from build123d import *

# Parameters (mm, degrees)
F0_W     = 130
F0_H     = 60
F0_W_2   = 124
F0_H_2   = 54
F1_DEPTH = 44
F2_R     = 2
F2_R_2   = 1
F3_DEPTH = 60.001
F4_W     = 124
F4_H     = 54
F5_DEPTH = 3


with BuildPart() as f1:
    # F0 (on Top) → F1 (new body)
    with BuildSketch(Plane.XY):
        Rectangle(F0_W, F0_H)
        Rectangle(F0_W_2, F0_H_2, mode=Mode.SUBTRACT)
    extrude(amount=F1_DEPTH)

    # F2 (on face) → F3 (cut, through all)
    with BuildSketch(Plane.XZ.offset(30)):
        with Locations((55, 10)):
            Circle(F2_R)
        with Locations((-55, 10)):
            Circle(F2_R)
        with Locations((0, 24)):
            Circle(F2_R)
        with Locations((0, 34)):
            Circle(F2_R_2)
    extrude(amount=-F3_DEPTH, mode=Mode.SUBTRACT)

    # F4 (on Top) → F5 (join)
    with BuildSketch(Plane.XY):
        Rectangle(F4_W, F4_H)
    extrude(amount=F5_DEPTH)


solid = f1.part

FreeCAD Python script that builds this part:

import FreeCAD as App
import Part
import Sketcher
Q = App.Units.Quantity

doc = App.newDocument("Part")
params = doc.addObject("Spreadsheet::Sheet", "Params")
for row, (alias, value) in enumerate([
    ("sketch1_width", "130 mm"),
    ("sketch1_width2", "124 mm"),
    ("sketch1_height", "60 mm"),
    ("sketch1_height2", "54 mm"),
    ("pad1_length", "44 mm"),
    ("sketch2_diameter", "4 mm"),
    ("sketch2_diameter2", "2 mm"),
    ("sketch3_width", "124 mm"),
    ("sketch3_height", "54 mm"),
    ("pad2_length", "3 mm"),
], start=1):
    params.set(f"A{row}", alias)
    params.set(f"B{row}", "=" + value)
    params.setAlias(f"B{row}", alias)

body = doc.addObject("PartDesign::Body", "Body")

sketch1 = doc.addObject("Sketcher::SketchObject", "Sketch")
body.addObject(sketch1)
sketch1.AttachmentSupport = (doc.XY_Plane, [""])
sketch1.MapMode = "FlatFace"
sketch1.addGeometry(Part.LineSegment(App.Vector(-65, 30, 0), App.Vector(-65, -30, 0)), False)
sketch1.addGeometry(Part.LineSegment(App.Vector(-65, -30, 0), App.Vector(65, -30, 0)), False)
sketch1.addGeometry(Part.LineSegment(App.Vector(65, -30, 0), App.Vector(65, 30, 0)), False)
sketch1.addGeometry(Part.LineSegment(App.Vector(65, 30, 0), App.Vector(-65, 30, 0)), False)
sketch1.addGeometry(Part.LineSegment(App.Vector(62, -27, 0), App.Vector(-62, -27, 0)), False)
sketch1.addGeometry(Part.LineSegment(App.Vector(-62, -27, 0), App.Vector(-62, 27, 0)), False)
sketch1.addGeometry(Part.LineSegment(App.Vector(-62, 27, 0), App.Vector(62, 27, 0)), False)
sketch1.addGeometry(Part.LineSegment(App.Vector(62, 27, 0), App.Vector(62, -27, 0)), False)
sketch1.addConstraint(Sketcher.Constraint("Coincident", 0, 2, 1, 1))
sketch1.addConstraint(Sketcher.Constraint("Coincident", 1, 2, 2, 1))
sketch1.addConstraint(Sketcher.Constraint("Coincident", 2, 2, 3, 1))
sketch1.addConstraint(Sketcher.Constraint("Coincident", 3, 2, 0, 1))
sketch1.addConstraint(Sketcher.Constraint("Coincident", 4, 2, 5, 1))
sketch1.addConstraint(Sketcher.Constraint("Coincident", 5, 2, 6, 1))
sketch1.addConstraint(Sketcher.Constraint("Coincident", 6, 2, 7, 1))
sketch1.addConstraint(Sketcher.Constraint("Coincident", 7, 2, 4, 1))
sketch1.addConstraint(Sketcher.Constraint("Vertical", 0))
sketch1.addConstraint(Sketcher.Constraint("Horizontal", 1))
sketch1.addConstraint(Sketcher.Constraint("Vertical", 2))
sketch1.addConstraint(Sketcher.Constraint("Horizontal", 3))
sketch1.addConstraint(Sketcher.Constraint("Horizontal", 4))
sketch1.addConstraint(Sketcher.Constraint("Vertical", 5))
sketch1.addConstraint(Sketcher.Constraint("Horizontal", 6))
sketch1.addConstraint(Sketcher.Constraint("Vertical", 7))
sketch1.addConstraint(Sketcher.Constraint("Symmetric", 0, 2, 2, 2, -1, 1))
sketch1.addConstraint(Sketcher.Constraint("Symmetric", 4, 2, 6, 2, -1, 1))
sketch1.addConstraint(Sketcher.Constraint("DistanceX", 1, 1, 1, 2, Q("130 mm")))
sketch1.addConstraint(Sketcher.Constraint("DistanceX", 4, 2, 4, 1, Q("124 mm")))
sketch1.addConstraint(Sketcher.Constraint("DistanceY", 0, 2, 0, 1, Q("60 mm")))
sketch1.addConstraint(Sketcher.Constraint("DistanceY", 5, 1, 5, 2, Q("54 mm")))
sketch1.setExpression("Constraints[18]", "Params.sketch1_width")
sketch1.setExpression("Constraints[19]", "Params.sketch1_width2")
sketch1.setExpression("Constraints[20]", "Params.sketch1_height")
sketch1.setExpression("Constraints[21]", "Params.sketch1_height2")
pad1 = doc.addObject("PartDesign::Pad", "Pad")
body.addObject(pad1)
pad1.Profile = sketch1
pad1.setExpression("Length", "Params.pad1_length")

sketch2 = doc.addObject("Sketcher::SketchObject", "Sketch001")
body.addObject(sketch2)
sketch2.AttachmentSupport = (doc.XZ_Plane, [""])
sketch2.MapMode = "FlatFace"
sketch2.AttachmentOffset = App.Placement(App.Vector(0, 0, 30), App.Rotation())
sketch2.addGeometry(Part.Circle(App.Vector(55, 10, 0), App.Vector(0, 0, 1), 2), False)
sketch2.addGeometry(Part.Circle(App.Vector(-55, 10, 0), App.Vector(0, 0, 1), 2), False)
sketch2.addGeometry(Part.Circle(App.Vector(0, 24, 0), App.Vector(0, 0, 1), 2), False)
sketch2.addGeometry(Part.Circle(App.Vector(0, 34, 0), App.Vector(0, 0, 1), 1), False)
sketch2.addConstraint(Sketcher.Constraint("Equal", 0, 1))
sketch2.addConstraint(Sketcher.Constraint("Equal", 1, 2))
sketch2.addConstraint(Sketcher.Constraint("Symmetric", 0, 3, 1, 3, -2))
sketch2.addConstraint(Sketcher.Constraint("PointOnObject", 2, 3, -2))
sketch2.addConstraint(Sketcher.Constraint("PointOnObject", 3, 3, -2))
sketch2.addConstraint(Sketcher.Constraint("Diameter", 0, Q("4 mm")))
sketch2.addConstraint(Sketcher.Constraint("Diameter", 3, Q("2 mm")))
sketch2.addConstraint(Sketcher.Constraint("DistanceX", -1, 1, 0, 3, Q("55 mm")))
sketch2.addConstraint(Sketcher.Constraint("DistanceY", -1, 1, 0, 3, Q("10 mm")))
sketch2.addConstraint(Sketcher.Constraint("DistanceY", -1, 1, 2, 3, Q("24 mm")))
sketch2.addConstraint(Sketcher.Constraint("DistanceY", -1, 1, 3, 3, Q("34 mm")))
sketch2.setExpression("Constraints[5]", "Params.sketch2_diameter")
sketch2.setExpression("Constraints[6]", "Params.sketch2_diameter2")
pocket1 = doc.addObject("PartDesign::Pocket", "Pocket")
body.addObject(pocket1)
pocket1.Profile = sketch2
pocket1.Type = "ThroughAll"

sketch3 = doc.addObject("Sketcher::SketchObject", "Sketch002")
body.addObject(sketch3)
sketch3.AttachmentSupport = (doc.XY_Plane, [""])
sketch3.MapMode = "FlatFace"
sketch3.addGeometry(Part.LineSegment(App.Vector(-62, 27, 0), App.Vector(-62, -27, 0)), False)
sketch3.addGeometry(Part.LineSegment(App.Vector(-62, -27, 0), App.Vector(62, -27, 0)), False)
sketch3.addGeometry(Part.LineSegment(App.Vector(62, -27, 0), App.Vector(62, 27, 0)), False)
sketch3.addGeometry(Part.LineSegment(App.Vector(62, 27, 0), App.Vector(-62, 27, 0)), False)
sketch3.addConstraint(Sketcher.Constraint("Coincident", 0, 2, 1, 1))
sketch3.addConstraint(Sketcher.Constraint("Coincident", 1, 2, 2, 1))
sketch3.addConstraint(Sketcher.Constraint("Coincident", 2, 2, 3, 1))
sketch3.addConstraint(Sketcher.Constraint("Coincident", 3, 2, 0, 1))
sketch3.addConstraint(Sketcher.Constraint("Vertical", 0))
sketch3.addConstraint(Sketcher.Constraint("Horizontal", 1))
sketch3.addConstraint(Sketcher.Constraint("Vertical", 2))
sketch3.addConstraint(Sketcher.Constraint("Horizontal", 3))
sketch3.addConstraint(Sketcher.Constraint("Symmetric", 0, 2, 2, 2, -1, 1))
sketch3.addConstraint(Sketcher.Constraint("DistanceX", 1, 1, 1, 2, Q("124 mm")))
sketch3.addConstraint(Sketcher.Constraint("DistanceY", 0, 2, 0, 1, Q("54 mm")))
sketch3.setExpression("Constraints[9]", "Params.sketch3_width")
sketch3.setExpression("Constraints[10]", "Params.sketch3_height")
pad2 = doc.addObject("PartDesign::Pad", "Pad001")
body.addObject(pad2)
pad2.Profile = sketch3
pad2.setExpression("Length", "Params.pad2_length")

doc.recompute()
